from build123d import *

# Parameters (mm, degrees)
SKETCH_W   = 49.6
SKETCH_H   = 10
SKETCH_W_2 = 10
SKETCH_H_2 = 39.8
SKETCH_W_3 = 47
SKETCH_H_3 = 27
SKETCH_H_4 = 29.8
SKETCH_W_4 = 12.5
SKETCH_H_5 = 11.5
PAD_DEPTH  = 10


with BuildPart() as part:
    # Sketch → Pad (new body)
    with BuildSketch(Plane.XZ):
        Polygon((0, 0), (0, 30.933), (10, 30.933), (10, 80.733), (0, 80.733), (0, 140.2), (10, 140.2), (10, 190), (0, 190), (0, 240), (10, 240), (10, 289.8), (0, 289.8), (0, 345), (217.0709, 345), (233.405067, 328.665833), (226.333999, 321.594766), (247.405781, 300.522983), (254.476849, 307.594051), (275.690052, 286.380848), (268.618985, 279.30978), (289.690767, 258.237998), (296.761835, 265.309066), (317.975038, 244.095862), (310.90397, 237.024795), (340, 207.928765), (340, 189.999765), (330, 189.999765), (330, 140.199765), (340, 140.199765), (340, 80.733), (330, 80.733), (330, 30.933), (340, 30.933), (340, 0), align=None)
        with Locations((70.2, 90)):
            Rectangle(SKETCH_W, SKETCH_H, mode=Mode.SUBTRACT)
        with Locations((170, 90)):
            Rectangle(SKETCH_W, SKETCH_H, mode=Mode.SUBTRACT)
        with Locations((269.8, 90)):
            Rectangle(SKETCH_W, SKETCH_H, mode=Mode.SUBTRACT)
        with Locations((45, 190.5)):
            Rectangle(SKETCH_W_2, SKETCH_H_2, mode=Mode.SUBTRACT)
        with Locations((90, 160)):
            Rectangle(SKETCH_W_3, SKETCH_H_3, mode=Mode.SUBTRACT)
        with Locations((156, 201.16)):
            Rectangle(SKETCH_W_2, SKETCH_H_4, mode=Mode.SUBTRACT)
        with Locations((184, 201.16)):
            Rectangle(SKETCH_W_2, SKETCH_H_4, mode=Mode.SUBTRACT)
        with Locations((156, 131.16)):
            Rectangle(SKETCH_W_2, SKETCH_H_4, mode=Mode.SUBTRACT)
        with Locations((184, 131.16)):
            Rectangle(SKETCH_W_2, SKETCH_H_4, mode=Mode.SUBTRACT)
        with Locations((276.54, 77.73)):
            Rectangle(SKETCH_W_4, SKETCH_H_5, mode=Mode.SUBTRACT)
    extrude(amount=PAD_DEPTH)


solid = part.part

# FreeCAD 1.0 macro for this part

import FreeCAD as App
import Part
import Sketcher
from FreeCAD import Vector
Q = App.Units.Quantity

doc = App.newDocument("Part")
body = doc.addObject("PartDesign::Body", "Body")

# Sketch on XZ plane
sketch1 = doc.addObject("Sketcher::SketchObject", "Sketch")
body.addObject(sketch1)
sketch1.AttachmentSupport = (doc.XZ_Plane, [""])
sketch1.MapMode = "FlatFace"
sketch1.addGeometry(Part.LineSegment(Vector(0, 31, 0), Vector(0, 0, 0)), False)
sketch1.addGeometry(Part.LineSegment(Vector(0, 0, 0), Vector(340, 0, 0)), False)
sketch1.addGeometry(Part.LineSegment(Vector(340, 0, 0), Vector(340, 31, 0)), False)
sketch1.addGeometry(Part.LineSegment(Vector(340, 31, 0), Vector(330, 31, 0)), False)
sketch1.addGeometry(Part.LineSegment(Vector(330, 31, 0), Vector(330, 81, 0)), False)
sketch1.addGeometry(Part.LineSegment(Vector(330, 81, 0), Vector(340, 81, 0)), False)
sketch1.addGeometry(Part.LineSegment(Vector(340, 81, 0), Vector(340, 140, 0)), False)
sketch1.addGeometry(Part.LineSegment(Vector(340, 140, 0), Vector(330, 140, 0)), False)
sketch1.addGeometry(Part.LineSegment(Vector(330, 140, 0), Vector(330, 190, 0)), False)
sketch1.addGeometry(Part.LineSegment(Vector(330, 190, 0), Vector(340, 190, 0)), False)
sketch1.addGeometry(Part.LineSegment(Vector(340, 190, 0), Vector(340, 208, 0)), False)
sketch1.addGeometry(Part.LineSegment(Vector(340, 208, 0), Vector(311, 237, 0)), False)
sketch1.addGeometry(Part.LineSegment(Vector(311, 237, 0), Vector(318, 244, 0)), False)
sketch1.addGeometry(Part.LineSegment(Vector(318, 244, 0), Vector(297, 265, 0)), False)
sketch1.addGeometry(Part.LineSegment(Vector(297, 265, 0), Vector(290, 258, 0)), False)
sketch1.addGeometry(Part.LineSegment(Vector(290, 258, 0), Vector(269, 279, 0)), False)
sketch1.addGeometry(Part.LineSegment(Vector(269, 279, 0), Vector(276, 286, 0)), False)
sketch1.addGeometry(Part.LineSegment(Vector(276, 286, 0), Vector(254, 308, 0)), False)
sketch1.addGeometry(Part.LineSegment(Vector(254, 308, 0), Vector(247, 301, 0)), False)
sketch1.addGeometry(Part.LineSegment(Vector(247, 301, 0), Vector(226, 322, 0)), False)
sketch1.addGeometry(Part.LineSegment(Vector(226, 322, 0), Vector(233, 329, 0)), False)
sketch1.addGeometry(Part.LineSegment(Vector(233, 329, 0), Vector(217, 345, 0)), False)
sketch1.addGeometry(Part.LineSegment(Vector(217, 345, 0), Vector(0, 345, 0)), False)
sketch1.addGeometry(Part.LineSegment(Vector(0, 345, 0), Vector(0, 290, 0)), False)
sketch1.addGeometry(Part.LineSegment(Vector(0, 290, 0), Vector(10, 290, 0)), False)
sketch1.addGeometry(Part.LineSegment(Vector(10, 290, 0), Vector(10, 240, 0)), False)
sketch1.addGeometry(Part.LineSegment(Vector(10, 240, 0), Vector(0, 240, 0)), False)
sketch1.addGeometry(Part.LineSegment(Vector(0, 240, 0), Vector(0, 190, 0)), False)
sketch1.addGeometry(Part.LineSegment(Vector(0, 190, 0), Vector(10, 190, 0)), False)
sketch1.addGeometry(Part.LineSegment(Vector(10, 190, 0), Vector(10, 140, 0)), False)
sketch1.addGeometry(Part.LineSegment(Vector(10, 140, 0), Vector(0, 140, 0)), False)
sketch1.addGeometry(Part.LineSegment(Vector(0, 140, 0), Vector(0, 81, 0)), False)
sketch1.addGeometry(Part.LineSegment(Vector(0, 81, 0), Vector(10, 81, 0)), False)
sketch1.addGeometry(Part.LineSegment(Vector(10, 81, 0), Vector(10, 31, 0)), False)
sketch1.addGeometry(Part.LineSegment(Vector(10, 31, 0), Vector(0, 31, 0)), False)
sketch1.addGeometry(Part.LineSegment(Vector(270, 72, 0), Vector(270, 83, 0)), False)
sketch1.addGeometry(Part.LineSegment(Vector(270, 83, 0), Vector(283, 83, 0)), False)
sketch1.addGeometry(Part.LineSegment(Vector(283, 83, 0), Vector(283, 72, 0)), False)
sketch1.addGeometry(Part.LineSegment(Vector(283, 72, 0), Vector(270, 72, 0)), False)
sketch1.addGeometry(Part.LineSegment(Vector(245, 85, 0), Vector(245, 95, 0)), False)
sketch1.addGeometry(Part.LineSegment(Vector(245, 95, 0), Vector(295, 95, 0)), False)
sketch1.addGeometry(Part.LineSegment(Vector(295, 95, 0), Vector(295, 85, 0)), False)
sketch1.addGeometry(Part.LineSegment(Vector(295, 85, 0), Vector(245, 85, 0)), False)
sketch1.addGeometry(Part.LineSegment(Vector(145, 85, 0), Vector(145, 95, 0)), False)
sketch1.addGeometry(Part.LineSegment(Vector(145, 95, 0), Vector(195, 95, 0)), False)
sketch1.addGeometry(Part.LineSegment(Vector(195, 95, 0), Vector(195, 85, 0)), False)
sketch1.addGeometry(Part.LineSegment(Vector(195, 85, 0), Vector(145, 85, 0)), False)
sketch1.addGeometry(Part.LineSegment(Vector(179, 116, 0), Vector(179, 146, 0)), False)
sketch1.addGeometry(Part.LineSegment(Vector(179, 146, 0), Vector(189, 146, 0)), False)
sketch1.addGeometry(Part.LineSegment(Vector(189, 146, 0), Vector(189, 116, 0)), False)
sketch1.addGeometry(Part.LineSegment(Vector(189, 116, 0), Vector(179, 116, 0)), False)
sketch1.addGeometry(Part.LineSegment(Vector(45, 85, 0), Vector(45, 95, 0)), False)
sketch1.addGeometry(Part.LineSegment(Vector(45, 95, 0), Vector(95, 95, 0)), False)
sketch1.addGeometry(Part.LineSegment(Vector(95, 95, 0), Vector(95, 85, 0)), False)
sketch1.addGeometry(Part.LineSegment(Vector(95, 85, 0), Vector(45, 85, 0)), False)
sketch1.addGeometry(Part.LineSegment(Vector(151, 116, 0), Vector(151, 146, 0)), False)
sketch1.addGeometry(Part.LineSegment(Vector(151, 146, 0), Vector(161, 146, 0)), False)
sketch1.addGeometry(Part.LineSegment(Vector(161, 146, 0), Vector(161, 116, 0)), False)
sketch1.addGeometry(Part.LineSegment(Vector(161, 116, 0), Vector(151, 116, 0)), False)
sketch1.addGeometry(Part.LineSegment(Vector(179, 186, 0), Vector(179, 216, 0)), False)
sketch1.addGeometry(Part.LineSegment(Vector(179, 216, 0), Vector(189, 216, 0)), False)
sketch1.addGeometry(Part.LineSegment(Vector(189, 216, 0), Vector(189, 186, 0)), False)
sketch1.addGeometry(Part.LineSegment(Vector(189, 186, 0), Vector(179, 186, 0)), False)
sketch1.addGeometry(Part.LineSegment(Vector(66, 146, 0), Vector(66, 174, 0)), False)
sketch1.addGeometry(Part.LineSegment(Vector(66, 174, 0), Vector(114, 174, 0)), False)
sketch1.addGeometry(Part.LineSegment(Vector(114, 174, 0), Vector(114, 146, 0)), False)
sketch1.addGeometry(Part.LineSegment(Vector(114, 146, 0), Vector(66, 146, 0)), False)
sketch1.addGeometry(Part.LineSegment(Vector(151, 186, 0), Vector(151, 216, 0)), False)
sketch1.addGeometry(Part.LineSegment(Vector(151, 216, 0), Vector(161, 216, 0)), False)
sketch1.addGeometry(Part.LineSegment(Vector(161, 216, 0), Vector(161, 186, 0)), False)
sketch1.addGeometry(Part.LineSegment(Vector(161, 186, 0), Vector(151, 186, 0)), False)
sketch1.addGeometry(Part.LineSegment(Vector(40, 171, 0), Vector(40, 210, 0)), False)
sketch1.addGeometry(Part.LineSegment(Vector(40, 210, 0), Vector(50, 210, 0)), False)
sketch1.addGeometry(Part.LineSegment(Vector(50, 210, 0), Vector(50, 171, 0)), False)
sketch1.addGeometry(Part.LineSegment(Vector(50, 171, 0), Vector(40, 171, 0)), False)
sketch1.addConstraint(Sketcher.Constraint("Coincident", 0, 2, 1, 1))
sketch1.addConstraint(Sketcher.Constraint("Coincident", 1, 2, 2, 1))
sketch1.addConstraint(Sketcher.Constraint("Coincident", 2, 2, 3, 1))
sketch1.addConstraint(Sketcher.Constraint("Coincident", 3, 2, 4, 1))
sketch1.addConstraint(Sketcher.Constraint("Coincident", 4, 2, 5, 1))
sketch1.addConstraint(Sketcher.Constraint("Coincident", 5, 2, 6, 1))
sketch1.addConstraint(Sketcher.Constraint("Coincident", 6, 2, 7, 1))
sketch1.addConstraint(Sketcher.Constraint("Coincident", 7, 2, 8, 1))
sketch1.addConstraint(Sketcher.Constraint("Coincident", 8, 2, 9, 1))
sketch1.addConstraint(Sketcher.Constraint("Coincident", 9, 2, 10, 1))
sketch1.addConstraint(Sketcher.Constraint("Coincident", 10, 2, 11, 1))
sketch1.addConstraint(Sketcher.Constraint("Coincident", 11, 2, 12, 1))
sketch1.addConstraint(Sketcher.Constraint("Coincident", 12, 2, 13, 1))
sketch1.addConstraint(Sketcher.Constraint("Coincident", 13, 2, 14, 1))
sketch1.addConstraint(Sketcher.Constraint("Coincident", 14, 2, 15, 1))
sketch1.addConstraint(Sketcher.Constraint("Coincident", 15, 2, 16, 1))
sketch1.addConstraint(Sketcher.Constraint("Coincident", 16, 2, 17, 1))
sketch1.addConstraint(Sketcher.Constraint("Coincident", 17, 2, 18, 1))
sketch1.addConstraint(Sketcher.Constraint("Coincident", 18, 2, 19, 1))
sketch1.addConstraint(Sketcher.Constraint("Coincident", 19, 2, 20, 1))
sketch1.addConstraint(Sketcher.Constraint("Coincident", 20, 2, 21, 1))
sketch1.addConstraint(Sketcher.Constraint("Coincident", 21, 2, 22, 1))
sketch1.addConstraint(Sketcher.Constraint("Coincident", 22, 2, 23, 1))
sketch1.addConstraint(Sketcher.Constraint("Coincident", 23, 2, 24, 1))
sketch1.addConstraint(Sketcher.Constraint("Coincident", 24, 2, 25, 1))
sketch1.addConstraint(Sketcher.Constraint("Coincident", 25, 2, 26, 1))
sketch1.addConstraint(Sketcher.Constraint("Coincident", 26, 2, 27, 1))
sketch1.addConstraint(Sketcher.Constraint("Coincident", 27, 2, 28, 1))
sketch1.addConstraint(Sketcher.Constraint("Coincident", 28, 2, 29, 1))
sketch1.addConstraint(Sketcher.Constraint("Coincident", 29, 2, 30, 1))
sketch1.addConstraint(Sketcher.Constraint("Coincident", 30, 2, 31, 1))
sketch1.addConstraint(Sketcher.Constraint("Coincident", 31, 2, 32, 1))
sketch1.addConstraint(Sketcher.Constraint("Coincident", 32, 2, 33, 1))
sketch1.addConstraint(Sketcher.Constraint("Coincident", 33, 2, 34, 1))
sketch1.addConstraint(Sketcher.Constraint("Coincident", 34, 2, 0, 1))
sketch1.addConstraint(Sketcher.Constraint("Coincident", 35, 2, 36, 1))
sketch1.addConstraint(Sketcher.Constraint("Coincident", 36, 2, 37, 1))
sketch1.addConstraint(Sketcher.Constraint("Coincident", 37, 2, 38, 1))
sketch1.addConstraint(Sketcher.Constraint("Coincident", 38, 2, 35, 1))
sketch1.addConstraint(Sketcher.Constraint("Coincident", 39, 2, 40, 1))
sketch1.addConstraint(Sketcher.Constraint("Coincident", 40, 2, 41, 1))
sketch1.addConstraint(Sketcher.Constraint("Coincident", 41, 2, 42, 1))
sketch1.addConstraint(Sketcher.Constraint("Coincident", 42, 2, 39, 1))
sketch1.addConstraint(Sketcher.Constraint("Coincident", 43, 2, 44, 1))
sketch1.addConstraint(Sketcher.Constraint("Coincident", 44, 2, 45, 1))
sketch1.addConstraint(Sketcher.Constraint("Coincident", 45, 2, 46, 1))
sketch1.addConstraint(Sketcher.Constraint("Coincident", 46, 2, 43, 1))
sketch1.addConstraint(Sketcher.Constraint("Coincident", 47, 2, 48, 1))
sketch1.addConstraint(Sketcher.Constraint("Coincident", 48, 2, 49, 1))
sketch1.addConstraint(Sketcher.Constraint("Coincident", 49, 2, 50, 1))
sketch1.addConstraint(Sketcher.Constraint("Coincident", 50, 2, 47, 1))
sketch1.addConstraint(Sketcher.Constraint("Coincident", 51, 2, 52, 1))
sketch1.addConstraint(Sketcher.Constraint("Coincident", 52, 2, 53, 1))
sketch1.addConstraint(Sketcher.Constraint("Coincident", 53, 2, 54, 1))
sketch1.addConstraint(Sketcher.Constraint("Coincident", 54, 2, 51, 1))
sketch1.addConstraint(Sketcher.Constraint("Coincident", 55, 2, 56, 1))
sketch1.addConstraint(Sketcher.Constraint("Coincident", 56, 2, 57, 1))
sketch1.addConstraint(Sketcher.Constraint("Coincident", 57, 2, 58, 1))
sketch1.addConstraint(Sketcher.Constraint("Coincident", 58, 2, 55, 1))
sketch1.addConstraint(Sketcher.Constraint("Coincident", 59, 2, 60, 1))
sketch1.addConstraint(Sketcher.Constraint("Coincident", 60, 2, 61, 1))
sketch1.addConstraint(Sketcher.Constraint("Coincident", 61, 2, 62, 1))
sketch1.addConstraint(Sketcher.Constraint("Coincident", 62, 2, 59, 1))
sketch1.addConstraint(Sketcher.Constraint("Coincident", 63, 2, 64, 1))
sketch1.addConstraint(Sketcher.Constraint("Coincident", 64, 2, 65, 1))
sketch1.addConstraint(Sketcher.Constraint("Coincident", 65, 2, 66, 1))
sketch1.addConstraint(Sketcher.Constraint("Coincident", 66, 2, 63, 1))
sketch1.addConstraint(Sketcher.Constraint("Coincident", 67, 2, 68, 1))
sketch1.addConstraint(Sketcher.Constraint("Coincident", 68, 2, 69, 1))
sketch1.addConstraint(Sketcher.Constraint("Coincident", 69, 2, 70, 1))
sketch1.addConstraint(Sketcher.Constraint("Coincident", 70, 2, 67, 1))
sketch1.addConstraint(Sketcher.Constraint("Coincident", 71, 2, 72, 1))
sketch1.addConstraint(Sketcher.Constraint("Coincident", 72, 2, 73, 1))
sketch1.addConstraint(Sketcher.Constraint("Coincident", 73, 2, 74, 1))
sketch1.addConstraint(Sketcher.Constraint("Coincident", 74, 2, 71, 1))
sketch1.addConstraint(Sketcher.Constraint("Vertical", 0))
sketch1.addConstraint(Sketcher.Constraint("Horizontal", 1))
sketch1.addConstraint(Sketcher.Constraint("Vertical", 2))
sketch1.addConstraint(Sketcher.Constraint("Horizontal", 3))
sketch1.addConstraint(Sketcher.Constraint("Vertical", 4))
sketch1.addConstraint(Sketcher.Constraint("Horizontal", 5))
sketch1.addConstraint(Sketcher.Constraint("Vertical", 6))
sketch1.addConstraint(Sketcher.Constraint("Horizontal", 7))
sketch1.addConstraint(Sketcher.Constraint("Vertical", 8))
sketch1.addConstraint(Sketcher.Constraint("Horizontal", 9))
sketch1.addConstraint(Sketcher.Constraint("Vertical", 10))
sketch1.addConstraint(Sketcher.Constraint("Horizontal", 22))
sketch1.addConstraint(Sketcher.Constraint("Vertical", 23))
sketch1.addConstraint(Sketcher.Constraint("Horizontal", 24))
sketch1.addConstraint(Sketcher.Constraint("Vertical", 25))
sketch1.addConstraint(Sketcher.Constraint("Horizontal", 26))
sketch1.addConstraint(Sketcher.Constraint("Vertical", 27))
sketch1.addConstraint(Sketcher.Constraint("Horizontal", 28))
sketch1.addConstraint(Sketcher.Constraint("Vertical", 29))
sketch1.addConstraint(Sketcher.Constraint("Horizontal", 30))
sketch1.addConstraint(Sketcher.Constraint("Vertical", 31))
sketch1.addConstraint(Sketcher.Constraint("Horizontal", 32))
sketch1.addConstraint(Sketcher.Constraint("Vertical", 33))
sketch1.addConstraint(Sketcher.Constraint("Horizontal", 34))
sketch1.addConstraint(Sketcher.Constraint("Vertical", 35))
sketch1.addConstraint(Sketcher.Constraint("Horizontal", 36))
sketch1.addConstraint(Sketcher.Constraint("Vertical", 37))
sketch1.addConstraint(Sketcher.Constraint("Horizontal", 38))
sketch1.addConstraint(Sketcher.Constraint("Vertical", 39))
sketch1.addConstraint(Sketcher.Constraint("Horizontal", 40))
sketch1.addConstraint(Sketcher.Constraint("Vertical", 41))
sketch1.addConstraint(Sketcher.Constraint("Horizontal", 42))
sketch1.addConstraint(Sketcher.Constraint("Vertical", 43))
sketch1.addConstraint(Sketcher.Constraint("Horizontal", 44))
sketch1.addConstraint(Sketcher.Constraint("Vertical", 45))
sketch1.addConstraint(Sketcher.Constraint("Horizontal", 46))
sketch1.addConstraint(Sketcher.Constraint("Vertical", 47))
sketch1.addConstraint(Sketcher.Constraint("Horizontal", 48))
sketch1.addConstraint(Sketcher.Constraint("Vertical", 49))
sketch1.addConstraint(Sketcher.Constraint("Horizontal", 50))
sketch1.addConstraint(Sketcher.Constraint("Vertical", 51))
sketch1.addConstraint(Sketcher.Constraint("Horizontal", 52))
sketch1.addConstraint(Sketcher.Constraint("Vertical", 53))
sketch1.addConstraint(Sketcher.Constraint("Horizontal", 54))
sketch1.addConstraint(Sketcher.Constraint("Vertical", 55))
sketch1.addConstraint(Sketcher.Constraint("Horizontal", 56))
sketch1.addConstraint(Sketcher.Constraint("Vertical", 57))
sketch1.addConstraint(Sketcher.Constraint("Horizontal", 58))
sketch1.addConstraint(Sketcher.Constraint("Vertical", 59))
sketch1.addConstraint(Sketcher.Constraint("Horizontal", 60))
sketch1.addConstraint(Sketcher.Constraint("Vertical", 61))
sketch1.addConstraint(Sketcher.Constraint("Horizontal", 62))
sketch1.addConstraint(Sketcher.Constraint("Vertical", 63))
sketch1.addConstraint(Sketcher.Constraint("Horizontal", 64))
sketch1.addConstraint(Sketcher.Constraint("Vertical", 65))
sketch1.addConstraint(Sketcher.Constraint("Horizontal", 66))
sketch1.addConstraint(Sketcher.Constraint("Vertical", 67))
sketch1.addConstraint(Sketcher.Constraint("Horizontal", 68))
sketch1.addConstraint(Sketcher.Constraint("Vertical", 69))
sketch1.addConstraint(Sketcher.Constraint("Horizontal", 70))
sketch1.addConstraint(Sketcher.Constraint("Vertical", 71))
sketch1.addConstraint(Sketcher.Constraint("Horizontal", 72))
sketch1.addConstraint(Sketcher.Constraint("Vertical", 73))
sketch1.addConstraint(Sketcher.Constraint("Horizontal", 74))
sketch1.addConstraint(Sketcher.Constraint("Coincident", 0, 2, -1, 1))
sketch1.addConstraint(Sketcher.Constraint("PointOnObject", 22, 2, -2))
sketch1.addConstraint(Sketcher.Constraint("PointOnObject", 26, 2, -2))
sketch1.addConstraint(Sketcher.Constraint("PointOnObject", 30, 2, -2))
sketch1.addConstraint(Sketcher.Constraint("Perpendicular", 11, 12))
sketch1.addConstraint(Sketcher.Constraint("Perpendicular", 12, 13))
sketch1.addConstraint(Sketcher.Constraint("Perpendicular", 13, 14))
sketch1.addConstraint(Sketcher.Constraint("Perpendicular", 14, 15))
sketch1.addConstraint(Sketcher.Constraint("Perpendicular", 15, 16))
sketch1.addConstraint(Sketcher.Constraint("Perpendicular", 16, 17))
sketch1.addConstraint(Sketcher.Constraint("Perpendicular", 17, 18))
sketch1.addConstraint(Sketcher.Constraint("Perpendicular", 18, 19))
sketch1.addConstraint(Sketcher.Constraint("Perpendicular", 19, 20))
sketch1.addConstraint(Sketcher.Constraint("Perpendicular", 20, 21))
sketch1.addConstraint(Sketcher.Constraint("Horizontal", 5, 2, 31, 2))
sketch1.addConstraint(Sketcher.Constraint("Horizontal", 3, 2, 33, 2))
sketch1.addConstraint(Sketcher.Constraint("Horizontal", 40, 2, 43, 2))
sketch1.addConstraint(Sketcher.Constraint("Horizontal", 42, 2, 45, 2))
sketch1.addConstraint(Sketcher.Constraint("Horizontal", 44, 2, 51, 2))
sketch1.addConstraint(Sketcher.Constraint("Horizontal", 46, 2, 53, 2))
sketch1.addConstraint(Sketcher.Constraint("Horizontal", 48, 2, 55, 2))
sketch1.addConstraint(Sketcher.Constraint("Horizontal", 50, 2, 57, 2))
sketch1.addConstraint(Sketcher.Constraint("Horizontal", 60, 2, 67, 2))
sketch1.addConstraint(Sketcher.Constraint("Horizontal", 62, 2, 69, 2))
sketch1.addConstraint(Sketcher.Constraint("Vertical", 2, 2, 5, 2))
sketch1.addConstraint(Sketcher.Constraint("Vertical", 4, 2, 7, 2))
sketch1.addConstraint(Sketcher.Constraint("Vertical", 6, 2, 9, 2))
sketch1.addConstraint(Sketcher.Constraint("Vertical", 25, 2, 28, 2))
sketch1.addConstraint(Sketcher.Constraint("Vertical", 29, 2, 32, 2))
sketch1.addConstraint(Sketcher.Constraint("Vertical", 50, 2, 59, 2))
sketch1.addConstraint(Sketcher.Constraint("Vertical", 49, 2, 60, 2))
sketch1.addConstraint(Sketcher.Constraint("Vertical", 58, 2, 67, 2))
sketch1.addConstraint(Sketcher.Constraint("Vertical", 57, 2, 68, 2))
sketch1.addConstraint(Sketcher.Constraint("Equal", 9, 24))
sketch1.addConstraint(Sketcher.Constraint("Equal", 42, 44))
sketch1.addConstraint(Sketcher.Constraint("Equal", 34, 48))
sketch1.addConstraint(Sketcher.Constraint("Equal", 46, 52))
sketch1.addConstraint(Sketcher.Constraint("Equal", 50, 56))
sketch1.addConstraint(Sketcher.Constraint("Equal", 70, 72))
sketch1.addConstraint(Sketcher.Constraint("Equal", 4, 8))
sketch1.addConstraint(Sketcher.Constraint("Equal", 8, 25))
sketch1.addConstraint(Sketcher.Constraint("Equal", 25, 29))
sketch1.addConstraint(Sketcher.Constraint("Equal", 74, 39))
sketch1.addConstraint(Sketcher.Constraint("Equal", 57, 59))
sketch1.addConstraint(Sketcher.Constraint("Equal", 12, 14))
sketch1.addConstraint(Sketcher.Constraint("Equal", 14, 16))
sketch1.addConstraint(Sketcher.Constraint("Equal", 13, 17))
sketch1.addConstraint(Sketcher.Constraint("Equal", 16, 18))
sketch1.addConstraint(Sketcher.Constraint("Equal", 15, 19))
sketch1.addConstraint(Sketcher.Constraint("Equal", 18, 20))
sketch1.addConstraint(Sketcher.Constraint("DistanceX", 1, 1, 1, 2, 340.0))
sketch1.addConstraint(Sketcher.Constraint("DistanceX", 3, 2, 3, 1, 10.0))
sketch1.addConstraint(Sketcher.Constraint("DistanceX", 64, 1, 64, 2, 47.0))
sketch1.addConstraint(Sketcher.Constraint("DistanceY", 27, 2, 27, 1, 50.0))
sketch1.addConstraint(Sketcher.Constraint("DistanceY", 63, 1, 63, 2, 27.0))
sketch1.addConstraint(Sketcher.Constraint("Angle", 11, Q("135 deg")))
sketch1.addConstraint(Sketcher.Constraint("Distance", 12, 10.0))
sketch1.addConstraint(Sketcher.Constraint("Distance", 13, 30.0))
sketch1.addConstraint(Sketcher.Constraint("DistanceX", 36, 1, 36, 2, 12.5))
sketch1.addConstraint(Sketcher.Constraint("DistanceX", 40, 1, 40, 2, 49.6))
sketch1.addConstraint(Sketcher.Constraint("DistanceY", 4, 1, 4, 2, 49.8))
sketch1.addConstraint(Sketcher.Constraint("DistanceY", 23, 2, 23, 1, 55.2))
sketch1.addConstraint(Sketcher.Constraint("DistanceY", 35, 1, 35, 2, 11.5))
sketch1.addConstraint(Sketcher.Constraint("DistanceY", 47, 1, 47, 2, 29.8))
sketch1.addConstraint(Sketcher.Constraint("DistanceY", 71, 1, 71, 2, 39.8))
sketch1.addConstraint(Sketcher.Constraint("DistanceY", -1, 1, 21, 2, 345.0))
sketch1.addConstraint(Sketcher.Constraint("DistanceX", -1, 1, 39, 2, 245.0))
sketch1.addConstraint(Sketcher.Constraint("DistanceY", -1, 1, 39, 2, 95.0))
sketch1.addConstraint(Sketcher.Constraint("DistanceX", -1, 1, 47, 2, 179.0))
sketch1.addConstraint(Sketcher.Constraint("DistanceX", -1, 1, 52, 2, 95.0))
sketch1.addConstraint(Sketcher.Constraint("DistanceX", -1, 1, 55, 2, 151.0))
sketch1.addConstraint(Sketcher.Constraint("DistanceX", -1, 1, 71, 2, 40.0))
sketch1.addConstraint(Sketcher.Constraint("Distance", 15, 29.8))
sketch1.addConstraint(Sketcher.Constraint("Distance", 21, 23.100001))
sketch1.addConstraint(Sketcher.Constraint("DistanceX", -1, 1, 43, 2, 145.2))
sketch1.addConstraint(Sketcher.Constraint("DistanceX", -1, 1, 63, 2, 66.5))
sketch1.addConstraint(Sketcher.Constraint("DistanceY", -1, 1, 63, 2, 173.5))
sketch1.addConstraint(Sketcher.Constraint("DistanceY", -1, 1, 71, 2, 210.4))
sketch1.addConstraint(Sketcher.Constraint("DistanceY", 0, 2, 0, 1, 30.933))
sketch1.addConstraint(Sketcher.Constraint("DistanceY", 10, 1, 10, 2, 17.929))
sketch1.addConstraint(Sketcher.Constraint("DistanceX", -1, 1, 35, 2, 270.29))
sketch1.addConstraint(Sketcher.Constraint("DistanceY", -1, 1, 35, 2, 83.48))
sketch1.addConstraint(Sketcher.Constraint("DistanceY", -1, 1, 47, 2, 146.06))
sketch1.addConstraint(Sketcher.Constraint("DistanceY", -1, 1, 59, 2, 216.06))
sketch1.addConstraint(Sketcher.Constraint("Distance", 11, 41.148))
pad1 = doc.addObject("PartDesign::Pad", "Pad")
body.addObject(pad1)
pad1.Profile = sketch1
pad1.Length = 10

doc.recompute()
